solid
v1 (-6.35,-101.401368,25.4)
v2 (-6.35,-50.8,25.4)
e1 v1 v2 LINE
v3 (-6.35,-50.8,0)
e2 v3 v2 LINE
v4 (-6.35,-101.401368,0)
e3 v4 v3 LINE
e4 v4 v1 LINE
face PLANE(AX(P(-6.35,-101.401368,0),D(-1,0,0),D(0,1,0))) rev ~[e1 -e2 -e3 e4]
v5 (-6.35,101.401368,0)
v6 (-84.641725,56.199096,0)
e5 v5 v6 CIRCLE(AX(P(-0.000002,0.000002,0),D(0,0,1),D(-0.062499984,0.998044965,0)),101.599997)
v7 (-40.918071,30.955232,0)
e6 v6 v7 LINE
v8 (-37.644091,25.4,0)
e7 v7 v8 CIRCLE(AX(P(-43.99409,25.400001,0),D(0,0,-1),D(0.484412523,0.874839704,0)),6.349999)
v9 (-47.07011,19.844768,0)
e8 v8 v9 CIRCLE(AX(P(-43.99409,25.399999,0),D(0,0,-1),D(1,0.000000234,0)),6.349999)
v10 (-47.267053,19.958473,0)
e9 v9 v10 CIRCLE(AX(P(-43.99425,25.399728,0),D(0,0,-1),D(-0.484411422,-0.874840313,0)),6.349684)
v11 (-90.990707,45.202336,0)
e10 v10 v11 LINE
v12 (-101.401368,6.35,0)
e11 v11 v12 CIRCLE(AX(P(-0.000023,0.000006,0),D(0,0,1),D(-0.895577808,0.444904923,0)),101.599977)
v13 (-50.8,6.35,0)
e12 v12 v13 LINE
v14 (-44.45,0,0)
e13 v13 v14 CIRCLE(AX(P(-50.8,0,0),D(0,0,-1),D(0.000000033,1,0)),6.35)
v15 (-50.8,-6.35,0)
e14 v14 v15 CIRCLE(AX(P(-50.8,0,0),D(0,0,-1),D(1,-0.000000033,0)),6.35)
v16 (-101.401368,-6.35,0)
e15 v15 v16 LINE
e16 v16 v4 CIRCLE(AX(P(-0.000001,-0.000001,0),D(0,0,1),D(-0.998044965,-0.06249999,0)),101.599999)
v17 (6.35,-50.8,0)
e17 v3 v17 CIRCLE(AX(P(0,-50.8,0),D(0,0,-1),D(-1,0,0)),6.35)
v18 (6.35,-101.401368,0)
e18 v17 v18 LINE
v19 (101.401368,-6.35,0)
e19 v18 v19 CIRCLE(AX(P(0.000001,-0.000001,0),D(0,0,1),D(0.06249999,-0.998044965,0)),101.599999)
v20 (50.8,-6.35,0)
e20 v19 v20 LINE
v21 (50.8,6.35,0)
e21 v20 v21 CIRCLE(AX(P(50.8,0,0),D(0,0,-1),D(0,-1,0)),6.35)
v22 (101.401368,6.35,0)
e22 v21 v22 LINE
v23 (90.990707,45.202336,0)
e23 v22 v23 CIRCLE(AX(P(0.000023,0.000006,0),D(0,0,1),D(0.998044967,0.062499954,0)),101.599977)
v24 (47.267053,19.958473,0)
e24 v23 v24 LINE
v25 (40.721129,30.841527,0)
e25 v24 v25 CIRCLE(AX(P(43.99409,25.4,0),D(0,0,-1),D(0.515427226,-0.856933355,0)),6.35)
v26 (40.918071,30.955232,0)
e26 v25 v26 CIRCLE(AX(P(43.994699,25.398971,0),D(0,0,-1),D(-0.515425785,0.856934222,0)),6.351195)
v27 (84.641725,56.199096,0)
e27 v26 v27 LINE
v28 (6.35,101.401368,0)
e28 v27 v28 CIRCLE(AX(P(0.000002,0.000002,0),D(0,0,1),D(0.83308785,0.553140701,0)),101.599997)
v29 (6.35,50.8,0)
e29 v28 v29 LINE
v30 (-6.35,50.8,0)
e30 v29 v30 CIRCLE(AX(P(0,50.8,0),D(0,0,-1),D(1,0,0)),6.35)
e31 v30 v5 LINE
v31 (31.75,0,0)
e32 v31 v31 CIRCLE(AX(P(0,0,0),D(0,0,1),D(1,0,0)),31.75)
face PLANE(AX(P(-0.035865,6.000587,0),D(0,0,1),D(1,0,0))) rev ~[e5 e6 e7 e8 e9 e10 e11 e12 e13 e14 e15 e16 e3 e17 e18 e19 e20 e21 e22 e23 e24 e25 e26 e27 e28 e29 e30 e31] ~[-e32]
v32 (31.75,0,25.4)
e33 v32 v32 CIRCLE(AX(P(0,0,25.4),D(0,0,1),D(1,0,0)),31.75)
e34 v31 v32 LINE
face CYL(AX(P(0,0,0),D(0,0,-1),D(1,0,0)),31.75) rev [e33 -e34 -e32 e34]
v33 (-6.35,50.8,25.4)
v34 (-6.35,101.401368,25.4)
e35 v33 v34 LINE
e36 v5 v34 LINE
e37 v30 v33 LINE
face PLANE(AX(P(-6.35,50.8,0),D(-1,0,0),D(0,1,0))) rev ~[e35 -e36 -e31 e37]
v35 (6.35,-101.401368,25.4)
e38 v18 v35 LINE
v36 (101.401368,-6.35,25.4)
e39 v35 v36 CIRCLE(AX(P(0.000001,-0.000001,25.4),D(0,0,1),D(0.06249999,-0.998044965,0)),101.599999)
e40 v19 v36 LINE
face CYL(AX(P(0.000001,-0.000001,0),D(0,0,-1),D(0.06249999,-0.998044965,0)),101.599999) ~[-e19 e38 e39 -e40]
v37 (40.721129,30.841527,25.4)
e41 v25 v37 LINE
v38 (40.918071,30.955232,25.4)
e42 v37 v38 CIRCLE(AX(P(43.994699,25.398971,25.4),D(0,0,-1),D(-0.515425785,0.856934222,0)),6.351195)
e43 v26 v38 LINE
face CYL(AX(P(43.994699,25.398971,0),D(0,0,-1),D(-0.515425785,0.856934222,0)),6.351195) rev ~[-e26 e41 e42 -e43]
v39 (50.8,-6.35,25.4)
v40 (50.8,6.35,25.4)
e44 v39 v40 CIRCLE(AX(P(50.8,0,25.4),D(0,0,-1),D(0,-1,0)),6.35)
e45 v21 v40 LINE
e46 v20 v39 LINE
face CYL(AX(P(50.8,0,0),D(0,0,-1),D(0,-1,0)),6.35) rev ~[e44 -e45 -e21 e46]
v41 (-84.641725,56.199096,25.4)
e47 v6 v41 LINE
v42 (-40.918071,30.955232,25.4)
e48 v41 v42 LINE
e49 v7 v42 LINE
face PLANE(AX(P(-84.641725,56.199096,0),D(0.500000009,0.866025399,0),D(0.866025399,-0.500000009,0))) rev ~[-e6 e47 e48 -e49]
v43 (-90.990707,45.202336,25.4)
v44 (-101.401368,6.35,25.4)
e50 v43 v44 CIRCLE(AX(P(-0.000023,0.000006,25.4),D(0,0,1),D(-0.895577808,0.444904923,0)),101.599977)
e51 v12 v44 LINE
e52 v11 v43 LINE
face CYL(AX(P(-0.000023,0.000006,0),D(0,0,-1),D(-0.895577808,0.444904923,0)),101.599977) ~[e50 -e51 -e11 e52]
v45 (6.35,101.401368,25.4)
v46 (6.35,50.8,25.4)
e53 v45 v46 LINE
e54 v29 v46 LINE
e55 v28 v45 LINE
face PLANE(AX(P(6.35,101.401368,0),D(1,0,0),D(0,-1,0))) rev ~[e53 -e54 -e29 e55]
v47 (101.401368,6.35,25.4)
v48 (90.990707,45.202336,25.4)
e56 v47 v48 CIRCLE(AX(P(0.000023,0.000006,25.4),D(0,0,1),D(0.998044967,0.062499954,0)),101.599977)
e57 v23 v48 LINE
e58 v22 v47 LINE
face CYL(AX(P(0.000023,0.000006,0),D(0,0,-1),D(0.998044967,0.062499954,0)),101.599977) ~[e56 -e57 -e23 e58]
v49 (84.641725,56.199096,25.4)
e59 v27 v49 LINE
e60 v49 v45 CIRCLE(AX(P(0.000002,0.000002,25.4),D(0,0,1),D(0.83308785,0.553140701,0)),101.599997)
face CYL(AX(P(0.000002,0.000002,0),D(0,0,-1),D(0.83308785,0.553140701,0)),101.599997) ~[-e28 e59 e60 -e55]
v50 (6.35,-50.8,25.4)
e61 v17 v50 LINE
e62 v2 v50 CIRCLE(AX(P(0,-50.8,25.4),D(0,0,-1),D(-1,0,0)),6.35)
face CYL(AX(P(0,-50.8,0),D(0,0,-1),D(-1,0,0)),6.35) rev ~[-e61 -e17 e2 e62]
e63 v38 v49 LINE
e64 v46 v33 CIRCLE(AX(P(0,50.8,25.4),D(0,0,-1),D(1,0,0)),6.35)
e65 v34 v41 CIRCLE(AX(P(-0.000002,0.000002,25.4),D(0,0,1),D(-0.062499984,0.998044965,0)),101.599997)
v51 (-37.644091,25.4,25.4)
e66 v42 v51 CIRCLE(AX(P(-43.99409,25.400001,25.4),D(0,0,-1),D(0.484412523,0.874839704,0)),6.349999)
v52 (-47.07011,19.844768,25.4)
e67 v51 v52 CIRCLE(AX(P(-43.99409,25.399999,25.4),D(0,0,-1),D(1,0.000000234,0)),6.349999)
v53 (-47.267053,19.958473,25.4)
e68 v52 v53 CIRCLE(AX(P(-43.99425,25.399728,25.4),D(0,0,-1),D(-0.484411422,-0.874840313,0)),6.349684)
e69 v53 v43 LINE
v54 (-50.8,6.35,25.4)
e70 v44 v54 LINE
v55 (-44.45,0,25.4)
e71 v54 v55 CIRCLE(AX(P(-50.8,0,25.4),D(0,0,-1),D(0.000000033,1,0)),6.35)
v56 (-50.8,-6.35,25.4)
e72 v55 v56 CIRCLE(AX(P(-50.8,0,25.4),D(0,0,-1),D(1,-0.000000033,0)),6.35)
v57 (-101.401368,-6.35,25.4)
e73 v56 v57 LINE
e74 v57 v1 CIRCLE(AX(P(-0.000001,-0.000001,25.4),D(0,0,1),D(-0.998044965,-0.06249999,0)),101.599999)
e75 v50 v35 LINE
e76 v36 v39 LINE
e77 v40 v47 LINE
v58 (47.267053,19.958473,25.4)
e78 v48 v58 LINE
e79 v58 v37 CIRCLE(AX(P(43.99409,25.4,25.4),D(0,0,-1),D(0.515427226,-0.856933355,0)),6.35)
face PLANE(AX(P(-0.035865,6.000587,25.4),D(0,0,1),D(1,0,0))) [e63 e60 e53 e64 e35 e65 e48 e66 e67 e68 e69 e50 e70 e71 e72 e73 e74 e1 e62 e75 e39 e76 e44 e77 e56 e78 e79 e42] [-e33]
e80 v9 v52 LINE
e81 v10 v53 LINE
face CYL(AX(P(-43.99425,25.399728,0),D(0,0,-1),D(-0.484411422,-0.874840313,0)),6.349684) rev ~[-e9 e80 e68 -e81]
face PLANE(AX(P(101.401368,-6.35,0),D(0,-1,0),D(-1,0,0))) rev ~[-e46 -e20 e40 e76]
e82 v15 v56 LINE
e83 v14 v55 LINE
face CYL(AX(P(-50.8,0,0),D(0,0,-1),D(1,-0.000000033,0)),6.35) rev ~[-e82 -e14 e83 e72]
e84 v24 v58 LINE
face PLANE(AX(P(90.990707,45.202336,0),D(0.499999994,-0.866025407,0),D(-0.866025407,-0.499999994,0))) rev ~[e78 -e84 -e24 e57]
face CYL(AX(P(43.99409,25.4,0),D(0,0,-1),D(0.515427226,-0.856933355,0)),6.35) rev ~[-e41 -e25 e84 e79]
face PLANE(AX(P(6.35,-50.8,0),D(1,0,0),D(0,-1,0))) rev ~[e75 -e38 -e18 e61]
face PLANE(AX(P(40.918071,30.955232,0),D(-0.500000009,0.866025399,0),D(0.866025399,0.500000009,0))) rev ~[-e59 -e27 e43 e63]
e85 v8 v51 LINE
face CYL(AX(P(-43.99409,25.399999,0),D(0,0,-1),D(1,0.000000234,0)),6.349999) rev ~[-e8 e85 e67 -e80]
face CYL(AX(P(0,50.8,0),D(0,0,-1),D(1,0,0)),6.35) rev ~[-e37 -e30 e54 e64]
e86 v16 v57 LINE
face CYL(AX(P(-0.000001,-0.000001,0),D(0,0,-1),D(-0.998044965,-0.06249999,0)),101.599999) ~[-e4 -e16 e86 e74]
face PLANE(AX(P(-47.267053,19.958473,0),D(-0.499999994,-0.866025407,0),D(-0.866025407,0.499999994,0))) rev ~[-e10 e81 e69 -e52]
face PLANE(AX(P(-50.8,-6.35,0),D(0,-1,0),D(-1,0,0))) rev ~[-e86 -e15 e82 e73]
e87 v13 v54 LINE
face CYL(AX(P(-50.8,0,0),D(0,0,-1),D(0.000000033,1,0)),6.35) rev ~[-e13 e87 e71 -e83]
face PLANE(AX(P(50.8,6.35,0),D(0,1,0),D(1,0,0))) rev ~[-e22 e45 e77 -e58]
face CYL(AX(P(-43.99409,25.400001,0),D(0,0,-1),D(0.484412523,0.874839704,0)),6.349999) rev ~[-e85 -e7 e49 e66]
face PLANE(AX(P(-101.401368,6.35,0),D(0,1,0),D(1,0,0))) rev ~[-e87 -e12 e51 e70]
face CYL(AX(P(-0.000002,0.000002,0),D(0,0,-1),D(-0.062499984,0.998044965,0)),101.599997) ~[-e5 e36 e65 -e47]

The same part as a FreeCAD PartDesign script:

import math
import FreeCAD as App
import Part
import Sketcher

V = App.Vector
Q = App.Units.Quantity

doc = App.newDocument("Part")
body = doc.addObject("PartDesign::Body", "Body")

# Sketch on XY plane
sketch1 = body.newObject("Sketcher::SketchObject", "Sketch")
sketch1.AttachmentSupport = (doc.getObject("XY_Plane"), [""])
sketch1.MapMode = "FlatFace"
sketch1.addGeometry([
    Part.LineSegment(V(50.8, 6.35, 0), V(101.401368, 6.35, 0)),  # 0
    Part.ArcOfCircle(Part.Circle(V(0.000023, 0.000006, 0), V(0, 0, 1), 101.599977), math.radians(3.583319), math.radians(26.417256)),  # 1
    Part.LineSegment(V(90.990707, 45.202336, 0), V(47.267053, 19.958473, 0)),  # 2
    Part.ArcOfCircle(Part.Circle(V(43.99409, 25.4, 0), V(0, 0, 1), 6.35), math.radians(121.026), math.radians(301.026016)),  # 3
    Part.ArcOfCircle(Part.Circle(V(43.994699, 25.398971, 0), V(0, 0, 1), 6.351195), math.radians(118.974292), math.radians(121.025919)),  # 4
    Part.LineSegment(V(40.918071, 30.955232, 0), V(84.641725, 56.199096, 0)),  # 5
    Part.ArcOfCircle(Part.Circle(V(0.000002, 0.000002, 0), V(0, 0, 1), 101.599997), math.radians(33.582746), math.radians(86.416679)),  # 6
    Part.LineSegment(V(6.35, 101.401368, 0), V(6.35, 50.8, 0)),  # 7
    Part.ArcOfCircle(Part.Circle(V(0, 50.8, 0), V(0, 0, 1), 6.35), math.radians(180), math.radians(360)),  # 8
    Part.LineSegment(V(-6.35, 50.8, 0), V(-6.35, 101.401368, 0)),  # 9
    Part.ArcOfCircle(Part.Circle(V(-0.000002, 0.000002, 0), V(0, 0, 1), 101.599997), math.radians(93.583321), math.radians(146.417254)),  # 10
    Part.LineSegment(V(-84.641725, 56.199096, 0), V(-40.918071, 30.955232, 0)),  # 11
    Part.ArcOfCircle(Part.Circle(V(-43.99409, 25.400001, 0), V(0, 0, 1), 6.349999), math.radians(-0.000006), math.radians(61.02601)),  # 12
    Part.ArcOfCircle(Part.Circle(V(-43.99409, 25.399999, 0), V(0, 0, 1), 6.349999), math.radians(-118.974001), math.radians(0.000013)),  # 13
    Part.ArcOfCircle(Part.Circle(V(-43.99425, 25.399728, 0), V(0, 0, 1), 6.349684), math.radians(-121.026041), math.radians(-118.973918)),  # 14
    Part.LineSegment(V(-47.267053, 19.958473, 0), V(-90.990707, 45.202336, 0)),  # 15
    Part.ArcOfCircle(Part.Circle(V(-0.000023, 0.000006, 0), V(0, 0, 1), 101.599977), math.radians(153.582744), math.radians(176.416681)),  # 16
    Part.LineSegment(V(-101.401368, 6.35, 0), V(-50.8, 6.35, 0)),  # 17
    Part.ArcOfCircle(Part.Circle(V(-50.8, 0, 0), V(0, 0, 1), 6.35), math.radians(0.000002), math.radians(89.999998)),  # 18
    Part.ArcOfCircle(Part.Circle(V(-50.8, 0, 0), V(0, 0, 1), 6.35), math.radians(-89.999998), math.radians(-0.000002)),  # 19
    Part.LineSegment(V(-50.8, -6.35, 0), V(-101.401368, -6.35, 0)),  # 20
    Part.ArcOfCircle(Part.Circle(V(-0.000001, -0.000001, 0), V(0, 0, 1), 101.599999), math.radians(-176.416679), math.radians(-93.583321)),  # 21
    Part.LineSegment(V(-6.35, -101.401368, 0), V(-6.35, -50.8, 0)),  # 22
    Part.ArcOfCircle(Part.Circle(V(0, -50.8, 0), V(0, 0, 1), 6.35), math.radians(0), math.radians(180)),  # 23
    Part.LineSegment(V(6.35, -50.8, 0), V(6.35, -101.401368, 0)),  # 24
    Part.ArcOfCircle(Part.Circle(V(0.000001, -0.000001, 0), V(0, 0, 1), 101.599999), math.radians(-86.416679), math.radians(-3.583321)),  # 25
    Part.LineSegment(V(101.401368, -6.35, 0), V(50.8, -6.35, 0)),  # 26
    Part.ArcOfCircle(Part.Circle(V(50.8, 0, 0), V(0, 0, 1), 6.35), math.radians(90), math.radians(270)),  # 27
    Part.Circle(V(0, 0, 0), V(0, 0, 1), 31.75),  # 28
], False)
sketch1.addConstraint([
    Sketcher.Constraint("Coincident", 0, 2, 1, 1),
    Sketcher.Constraint("Coincident", 1, 2, 2, 1),
    Sketcher.Constraint("Coincident", 2, 2, 3, 2),
    Sketcher.Constraint("Tangent", 3, 1, 4, 2),
    Sketcher.Constraint("Coincident", 4, 1, 5, 1),
    Sketcher.Constraint("Coincident", 5, 2, 6, 1),
    Sketcher.Constraint("Coincident", 6, 2, 7, 1),
    Sketcher.Constraint("Tangent", 7, 2, 8, 2),
    Sketcher.Constraint("Tangent", 8, 1, 9, 1),
    Sketcher.Constraint("Coincident", 9, 2, 10, 1),
    Sketcher.Constraint("Coincident", 10, 2, 11, 1),
    Sketcher.Constraint("Coincident", 11, 2, 12, 2),
    Sketcher.Constraint("Tangent", 12, 1, 13, 2),
    Sketcher.Constraint("Tangent", 13, 1, 14, 2),
    Sketcher.Constraint("Coincident", 14, 1, 15, 1),
    Sketcher.Constraint("Coincident", 15, 2, 16, 1),
    Sketcher.Constraint("Coincident", 16, 2, 17, 1),
    Sketcher.Constraint("Tangent", 17, 2, 18, 2),
    Sketcher.Constraint("Tangent", 18, 1, 19, 2),
    Sketcher.Constraint("Tangent", 19, 1, 20, 1),
    Sketcher.Constraint("Coincident", 20, 2, 21, 1),
    Sketcher.Constraint("Coincident", 21, 2, 22, 1),
    Sketcher.Constraint("Tangent", 22, 2, 23, 2),
    Sketcher.Constraint("Tangent", 23, 1, 24, 1),
    Sketcher.Constraint("Coincident", 24, 2, 25, 1),
    Sketcher.Constraint("Coincident", 25, 2, 26, 1),
    Sketcher.Constraint("Tangent", 26, 2, 27, 2),
    Sketcher.Constraint("Tangent", 27, 1, 0, 1),
    Sketcher.Constraint("Horizontal", 0),
    Sketcher.Constraint("Vertical", 7),
    Sketcher.Constraint("Vertical", 9),
    Sketcher.Constraint("Horizontal", 17),
    Sketcher.Constraint("Horizontal", 20),
    Sketcher.Constraint("Vertical", 22),
    Sketcher.Constraint("Vertical", 24),
    Sketcher.Constraint("Horizontal", 26),
    Sketcher.Constraint("Coincident", 6, 3, -1, 1),
    Sketcher.Constraint("Coincident", 10, 3, -1, 1),
    Sketcher.Constraint("Coincident", 21, 3, -1, 1),
    Sketcher.Constraint("Coincident", 25, 3, -1, 1),
    Sketcher.Constraint("Coincident", 28, 3, -1, 1),
    Sketcher.Constraint("Equal", 3, 8),
    Sketcher.Constraint("Equal", 6, 10),
    Sketcher.Constraint("Equal", 8, 12),
    Sketcher.Constraint("Equal", 12, 13),
    Sketcher.Constraint("Equal", 1, 16),
    Sketcher.Constraint("Equal", 13, 18),
    Sketcher.Constraint("Equal", 18, 19),
    Sketcher.Constraint("Equal", 10, 21),
    Sketcher.Constraint("Equal", 19, 23),
    Sketcher.Constraint("Equal", 21, 25),
    Sketcher.Constraint("Equal", 23, 27),
    Sketcher.Constraint("Symmetric", 8, 3, 23, 3, -1, 1),
    Sketcher.Constraint("Symmetric", 18, 3, 27, 3, -1, 1),
    Sketcher.Constraint("Symmetric", 3, 3, 12, 3, -2),
    Sketcher.Constraint("Symmetric", 1, 3, 16, 3, -2),
    Sketcher.Constraint("Symmetric", 16, 2, 20, 2, -1),
    Sketcher.Constraint("PointOnObject", 8, 3, -2),
    Sketcher.Constraint("PointOnObject", 18, 1, -1),
    Sketcher.Constraint("Parallel", 2, 5),
    Sketcher.Constraint("Parallel", 11, 15),
    Sketcher.Constraint("Horizontal", 5, 2, 10, 2),
    Sketcher.Constraint("Horizontal", 4, 1, 11, 2),
    Sketcher.Constraint("Horizontal", 13, 3, 12, 1),
    Sketcher.Constraint("Horizontal", 2, 2, 14, 1),
    Sketcher.Constraint("Equal", 26, 7),
    Sketcher.Constraint("Equal", 2, 5),
    Sketcher.Constraint("Radius", 6, Q("3.9999999 in")),
    Sketcher.Constraint("Diameter", 28, Q("2.5 in")),
    Sketcher.Constraint("Radius", 3, Q("0.25 in")),
    Sketcher.Constraint("DistanceY", -1, 1, 3, 3, Q("1 in")),
    Sketcher.Constraint("DistanceY", -1, 1, 8, 3, Q("2 in")),
    Sketcher.Constraint("Angle", 2, Q("-150 deg")),
    Sketcher.Constraint("Radius", 1, Q("101.599977 mm")),
    Sketcher.Constraint("Radius", 4, Q("6.351195 mm")),
    Sketcher.Constraint("Radius", 14, Q("6.349684 mm")),
    Sketcher.Constraint("DistanceX", -1, 1, 4, 3, Q("43.994699 mm")),
    Sketcher.Constraint("DistanceX", -1, 1, 3, 1, Q("40.721129 mm")),
    Sketcher.Constraint("DistanceX", -1, 1, 4, 1, Q("40.918071 mm")),
    Sketcher.Constraint("DistanceX", 13, 1, -1, 1, Q("47.07011 mm")),
    Sketcher.Constraint("DistanceY", 1, 3, 14, 3, Q("25.399722 mm")),
])
pad1 = body.newObject("PartDesign::Pad", "Pad")
pad1.Profile = sketch1
pad1.Length = Q("1 in")

doc.recompute()
